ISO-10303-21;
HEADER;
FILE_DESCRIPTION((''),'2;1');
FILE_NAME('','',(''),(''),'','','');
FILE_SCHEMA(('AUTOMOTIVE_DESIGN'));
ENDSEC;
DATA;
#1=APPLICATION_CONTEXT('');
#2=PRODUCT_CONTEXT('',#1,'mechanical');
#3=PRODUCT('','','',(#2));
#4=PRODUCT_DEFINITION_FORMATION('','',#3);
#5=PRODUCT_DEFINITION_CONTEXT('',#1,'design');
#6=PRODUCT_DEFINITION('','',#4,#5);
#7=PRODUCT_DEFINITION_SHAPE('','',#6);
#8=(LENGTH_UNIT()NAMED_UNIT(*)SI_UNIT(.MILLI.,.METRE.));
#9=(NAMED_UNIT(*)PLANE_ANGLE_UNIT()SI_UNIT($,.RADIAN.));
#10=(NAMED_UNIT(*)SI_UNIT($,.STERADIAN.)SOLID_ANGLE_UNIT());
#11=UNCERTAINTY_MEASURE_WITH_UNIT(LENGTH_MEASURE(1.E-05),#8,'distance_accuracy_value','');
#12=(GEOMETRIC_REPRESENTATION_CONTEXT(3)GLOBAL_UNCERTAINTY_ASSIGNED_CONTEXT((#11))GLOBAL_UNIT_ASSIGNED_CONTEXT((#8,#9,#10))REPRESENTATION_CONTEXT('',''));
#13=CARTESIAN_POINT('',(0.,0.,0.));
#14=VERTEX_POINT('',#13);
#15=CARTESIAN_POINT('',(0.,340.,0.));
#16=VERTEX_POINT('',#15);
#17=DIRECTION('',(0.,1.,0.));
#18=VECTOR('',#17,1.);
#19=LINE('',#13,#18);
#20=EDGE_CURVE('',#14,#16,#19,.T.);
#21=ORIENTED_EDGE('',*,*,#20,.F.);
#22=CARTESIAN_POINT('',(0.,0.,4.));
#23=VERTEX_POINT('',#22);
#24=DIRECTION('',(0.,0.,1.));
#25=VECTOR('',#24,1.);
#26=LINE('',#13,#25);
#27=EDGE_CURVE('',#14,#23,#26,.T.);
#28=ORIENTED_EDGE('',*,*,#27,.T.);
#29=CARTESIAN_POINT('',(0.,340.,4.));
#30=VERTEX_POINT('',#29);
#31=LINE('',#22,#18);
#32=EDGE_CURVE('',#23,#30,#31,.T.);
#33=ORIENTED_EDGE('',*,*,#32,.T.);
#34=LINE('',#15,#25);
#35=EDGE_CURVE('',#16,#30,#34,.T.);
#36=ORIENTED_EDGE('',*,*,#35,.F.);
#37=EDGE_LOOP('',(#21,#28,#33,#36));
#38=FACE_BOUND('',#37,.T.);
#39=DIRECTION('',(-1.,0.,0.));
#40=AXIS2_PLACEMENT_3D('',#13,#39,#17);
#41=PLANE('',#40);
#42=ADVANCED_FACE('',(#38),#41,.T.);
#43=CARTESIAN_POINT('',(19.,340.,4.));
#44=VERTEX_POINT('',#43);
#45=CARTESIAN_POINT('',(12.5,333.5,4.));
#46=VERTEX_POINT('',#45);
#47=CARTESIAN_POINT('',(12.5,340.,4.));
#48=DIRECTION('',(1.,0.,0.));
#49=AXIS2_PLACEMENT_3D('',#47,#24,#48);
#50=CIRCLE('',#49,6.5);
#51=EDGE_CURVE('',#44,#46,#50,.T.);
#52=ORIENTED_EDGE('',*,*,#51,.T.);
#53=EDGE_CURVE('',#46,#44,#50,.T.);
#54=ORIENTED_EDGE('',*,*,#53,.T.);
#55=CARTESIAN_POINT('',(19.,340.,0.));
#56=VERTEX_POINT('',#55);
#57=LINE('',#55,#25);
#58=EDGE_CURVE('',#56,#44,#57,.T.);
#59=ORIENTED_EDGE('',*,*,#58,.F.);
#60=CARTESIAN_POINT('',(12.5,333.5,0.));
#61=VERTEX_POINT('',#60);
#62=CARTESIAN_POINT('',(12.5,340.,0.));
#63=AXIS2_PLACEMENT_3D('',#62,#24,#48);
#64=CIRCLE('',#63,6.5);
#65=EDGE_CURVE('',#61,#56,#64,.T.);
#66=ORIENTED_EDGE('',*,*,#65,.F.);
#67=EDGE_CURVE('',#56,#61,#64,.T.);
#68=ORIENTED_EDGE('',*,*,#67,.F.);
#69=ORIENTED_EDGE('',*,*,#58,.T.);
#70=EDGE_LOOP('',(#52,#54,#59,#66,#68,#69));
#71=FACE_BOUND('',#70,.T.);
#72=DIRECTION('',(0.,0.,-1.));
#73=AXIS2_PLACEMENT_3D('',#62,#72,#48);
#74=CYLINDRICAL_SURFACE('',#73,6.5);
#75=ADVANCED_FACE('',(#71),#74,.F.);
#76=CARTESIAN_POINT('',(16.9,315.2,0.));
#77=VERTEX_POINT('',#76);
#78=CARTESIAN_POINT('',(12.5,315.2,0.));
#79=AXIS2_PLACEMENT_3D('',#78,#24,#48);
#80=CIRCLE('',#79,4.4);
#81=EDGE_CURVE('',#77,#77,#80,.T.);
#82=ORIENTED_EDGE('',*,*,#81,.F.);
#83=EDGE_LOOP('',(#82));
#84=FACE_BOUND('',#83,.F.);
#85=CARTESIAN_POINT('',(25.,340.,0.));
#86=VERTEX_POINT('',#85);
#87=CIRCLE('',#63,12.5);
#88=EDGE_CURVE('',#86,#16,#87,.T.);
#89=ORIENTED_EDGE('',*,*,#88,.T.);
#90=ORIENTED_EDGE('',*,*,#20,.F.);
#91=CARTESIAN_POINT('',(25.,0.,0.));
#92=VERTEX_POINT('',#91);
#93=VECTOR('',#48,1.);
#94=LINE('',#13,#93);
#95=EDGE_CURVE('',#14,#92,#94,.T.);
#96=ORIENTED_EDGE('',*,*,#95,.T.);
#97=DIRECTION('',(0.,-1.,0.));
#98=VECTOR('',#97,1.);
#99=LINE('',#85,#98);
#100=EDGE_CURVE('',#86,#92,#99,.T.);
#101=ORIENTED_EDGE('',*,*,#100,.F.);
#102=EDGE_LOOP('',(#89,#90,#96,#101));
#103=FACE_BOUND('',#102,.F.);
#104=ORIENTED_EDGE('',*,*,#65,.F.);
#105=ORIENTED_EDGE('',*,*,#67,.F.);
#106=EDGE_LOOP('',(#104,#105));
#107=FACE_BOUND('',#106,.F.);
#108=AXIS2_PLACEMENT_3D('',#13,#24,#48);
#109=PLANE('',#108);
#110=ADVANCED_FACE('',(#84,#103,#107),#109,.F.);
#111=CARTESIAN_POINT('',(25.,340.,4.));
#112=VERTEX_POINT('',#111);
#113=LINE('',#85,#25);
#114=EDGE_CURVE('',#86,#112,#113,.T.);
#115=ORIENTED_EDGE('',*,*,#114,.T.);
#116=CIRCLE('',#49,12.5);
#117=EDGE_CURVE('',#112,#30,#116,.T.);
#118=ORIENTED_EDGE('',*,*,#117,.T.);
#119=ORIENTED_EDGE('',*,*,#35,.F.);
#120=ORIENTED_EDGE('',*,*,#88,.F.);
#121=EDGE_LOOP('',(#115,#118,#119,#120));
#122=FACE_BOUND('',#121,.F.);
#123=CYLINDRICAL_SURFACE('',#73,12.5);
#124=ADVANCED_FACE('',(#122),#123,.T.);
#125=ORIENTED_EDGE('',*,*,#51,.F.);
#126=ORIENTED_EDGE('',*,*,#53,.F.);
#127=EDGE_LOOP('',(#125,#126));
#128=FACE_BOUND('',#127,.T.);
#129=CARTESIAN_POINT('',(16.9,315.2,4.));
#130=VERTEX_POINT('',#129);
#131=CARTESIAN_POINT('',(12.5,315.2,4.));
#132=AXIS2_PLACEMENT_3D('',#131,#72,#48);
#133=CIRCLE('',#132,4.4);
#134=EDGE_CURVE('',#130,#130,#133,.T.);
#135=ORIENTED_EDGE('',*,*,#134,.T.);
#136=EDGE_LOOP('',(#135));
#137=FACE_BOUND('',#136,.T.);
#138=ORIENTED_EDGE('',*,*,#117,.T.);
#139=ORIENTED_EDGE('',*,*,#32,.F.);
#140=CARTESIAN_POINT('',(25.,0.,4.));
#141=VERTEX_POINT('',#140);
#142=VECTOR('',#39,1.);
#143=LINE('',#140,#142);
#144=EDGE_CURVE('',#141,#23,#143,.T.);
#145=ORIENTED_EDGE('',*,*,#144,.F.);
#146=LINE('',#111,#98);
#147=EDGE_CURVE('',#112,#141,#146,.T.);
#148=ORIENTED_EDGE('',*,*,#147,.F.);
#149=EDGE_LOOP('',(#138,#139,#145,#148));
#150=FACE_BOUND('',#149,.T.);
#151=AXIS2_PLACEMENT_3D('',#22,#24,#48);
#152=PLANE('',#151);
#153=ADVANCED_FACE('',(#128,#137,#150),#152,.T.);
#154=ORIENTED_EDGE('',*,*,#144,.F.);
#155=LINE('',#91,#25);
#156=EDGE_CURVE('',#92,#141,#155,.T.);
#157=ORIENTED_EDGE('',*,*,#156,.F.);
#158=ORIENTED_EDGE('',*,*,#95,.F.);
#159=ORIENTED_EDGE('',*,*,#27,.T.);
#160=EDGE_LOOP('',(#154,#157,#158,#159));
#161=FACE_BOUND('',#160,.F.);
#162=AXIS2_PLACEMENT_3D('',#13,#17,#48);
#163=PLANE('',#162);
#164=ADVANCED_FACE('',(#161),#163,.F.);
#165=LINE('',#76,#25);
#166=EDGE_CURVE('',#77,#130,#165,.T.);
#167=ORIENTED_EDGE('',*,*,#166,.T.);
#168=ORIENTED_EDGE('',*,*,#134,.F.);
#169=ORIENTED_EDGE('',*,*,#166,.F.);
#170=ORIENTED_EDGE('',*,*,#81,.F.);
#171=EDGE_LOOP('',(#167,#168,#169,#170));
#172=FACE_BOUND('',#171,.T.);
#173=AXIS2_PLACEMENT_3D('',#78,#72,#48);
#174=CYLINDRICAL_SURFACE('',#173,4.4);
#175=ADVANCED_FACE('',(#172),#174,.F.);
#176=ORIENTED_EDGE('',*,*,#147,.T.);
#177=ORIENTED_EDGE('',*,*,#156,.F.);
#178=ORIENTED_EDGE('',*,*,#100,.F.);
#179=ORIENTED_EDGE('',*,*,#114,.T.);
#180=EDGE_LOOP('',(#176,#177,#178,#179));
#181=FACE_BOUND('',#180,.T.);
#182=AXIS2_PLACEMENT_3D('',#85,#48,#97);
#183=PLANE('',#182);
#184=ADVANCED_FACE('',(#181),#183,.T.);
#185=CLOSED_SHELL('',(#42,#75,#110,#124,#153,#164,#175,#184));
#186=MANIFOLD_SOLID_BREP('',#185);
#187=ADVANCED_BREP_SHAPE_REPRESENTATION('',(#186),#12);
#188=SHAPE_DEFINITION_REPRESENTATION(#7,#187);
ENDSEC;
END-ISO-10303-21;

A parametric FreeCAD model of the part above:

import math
import FreeCAD as App
import Part
import Sketcher

doc = App.newDocument("Part")
body = doc.addObject("PartDesign::Body", "Body")

# Sketch on XY plane
sketch1 = doc.addObject("Sketcher::SketchObject", "Sketch")
body.addObject(sketch1)
sketch1.AttachmentSupport = (doc.XY_Plane, [""])
sketch1.MapMode = "FlatFace"
sketch1.addGeometry([
    Part.LineSegment(App.Vector(0, 340, 0), App.Vector(0, 0, 0)),  # 0
    Part.LineSegment(App.Vector(0, 0, 0), App.Vector(25, 0, 0)),  # 1
    Part.LineSegment(App.Vector(25, 0, 0), App.Vector(25, 340, 0)),  # 2
    Part.ArcOfCircle(Part.Circle(App.Vector(12.5, 340, 0), App.Vector(0, 0, 1), 12.5), math.radians(0), math.radians(180)),  # 3
    Part.Circle(App.Vector(12.5, 315.2, 0), App.Vector(0, 0, 1), 4.4),  # 4
    Part.Circle(App.Vector(12.5, 340, 0), App.Vector(0, 0, 1), 6.5),  # 5
], False)
sketch1.addConstraint([
    Sketcher.Constraint("Coincident", 0, 2, 1, 1),
    Sketcher.Constraint("Coincident", 1, 2, 2, 1),
    Sketcher.Constraint("Tangent", 2, 2, 3, 1),
    Sketcher.Constraint("Tangent", 3, 2, 0, 1),
    Sketcher.Constraint("Vertical", 0),
    Sketcher.Constraint("Horizontal", 1),
    Sketcher.Constraint("Vertical", 2),
    Sketcher.Constraint("Coincident", 0, 2, -1, 1),
    Sketcher.Constraint("Coincident", 5, 3, 3, 3),
    Sketcher.Constraint("Vertical", 3, 3, 4, 3),
    Sketcher.Constraint("Diameter", 5, 13.0),
    Sketcher.Constraint("Diameter", 4, 8.8),
    Sketcher.Constraint("Radius", 3, 12.5),
    Sketcher.Constraint("DistanceY", 0, 2, 0, 1, 340.0),
    Sketcher.Constraint("DistanceY", 4, 3, 3, 3, 24.8),
])
pad1 = doc.addObject("PartDesign::Pad", "Pad")
body.addObject(pad1)
pad1.Profile = sketch1
pad1.Length = 4

doc.recompute()
